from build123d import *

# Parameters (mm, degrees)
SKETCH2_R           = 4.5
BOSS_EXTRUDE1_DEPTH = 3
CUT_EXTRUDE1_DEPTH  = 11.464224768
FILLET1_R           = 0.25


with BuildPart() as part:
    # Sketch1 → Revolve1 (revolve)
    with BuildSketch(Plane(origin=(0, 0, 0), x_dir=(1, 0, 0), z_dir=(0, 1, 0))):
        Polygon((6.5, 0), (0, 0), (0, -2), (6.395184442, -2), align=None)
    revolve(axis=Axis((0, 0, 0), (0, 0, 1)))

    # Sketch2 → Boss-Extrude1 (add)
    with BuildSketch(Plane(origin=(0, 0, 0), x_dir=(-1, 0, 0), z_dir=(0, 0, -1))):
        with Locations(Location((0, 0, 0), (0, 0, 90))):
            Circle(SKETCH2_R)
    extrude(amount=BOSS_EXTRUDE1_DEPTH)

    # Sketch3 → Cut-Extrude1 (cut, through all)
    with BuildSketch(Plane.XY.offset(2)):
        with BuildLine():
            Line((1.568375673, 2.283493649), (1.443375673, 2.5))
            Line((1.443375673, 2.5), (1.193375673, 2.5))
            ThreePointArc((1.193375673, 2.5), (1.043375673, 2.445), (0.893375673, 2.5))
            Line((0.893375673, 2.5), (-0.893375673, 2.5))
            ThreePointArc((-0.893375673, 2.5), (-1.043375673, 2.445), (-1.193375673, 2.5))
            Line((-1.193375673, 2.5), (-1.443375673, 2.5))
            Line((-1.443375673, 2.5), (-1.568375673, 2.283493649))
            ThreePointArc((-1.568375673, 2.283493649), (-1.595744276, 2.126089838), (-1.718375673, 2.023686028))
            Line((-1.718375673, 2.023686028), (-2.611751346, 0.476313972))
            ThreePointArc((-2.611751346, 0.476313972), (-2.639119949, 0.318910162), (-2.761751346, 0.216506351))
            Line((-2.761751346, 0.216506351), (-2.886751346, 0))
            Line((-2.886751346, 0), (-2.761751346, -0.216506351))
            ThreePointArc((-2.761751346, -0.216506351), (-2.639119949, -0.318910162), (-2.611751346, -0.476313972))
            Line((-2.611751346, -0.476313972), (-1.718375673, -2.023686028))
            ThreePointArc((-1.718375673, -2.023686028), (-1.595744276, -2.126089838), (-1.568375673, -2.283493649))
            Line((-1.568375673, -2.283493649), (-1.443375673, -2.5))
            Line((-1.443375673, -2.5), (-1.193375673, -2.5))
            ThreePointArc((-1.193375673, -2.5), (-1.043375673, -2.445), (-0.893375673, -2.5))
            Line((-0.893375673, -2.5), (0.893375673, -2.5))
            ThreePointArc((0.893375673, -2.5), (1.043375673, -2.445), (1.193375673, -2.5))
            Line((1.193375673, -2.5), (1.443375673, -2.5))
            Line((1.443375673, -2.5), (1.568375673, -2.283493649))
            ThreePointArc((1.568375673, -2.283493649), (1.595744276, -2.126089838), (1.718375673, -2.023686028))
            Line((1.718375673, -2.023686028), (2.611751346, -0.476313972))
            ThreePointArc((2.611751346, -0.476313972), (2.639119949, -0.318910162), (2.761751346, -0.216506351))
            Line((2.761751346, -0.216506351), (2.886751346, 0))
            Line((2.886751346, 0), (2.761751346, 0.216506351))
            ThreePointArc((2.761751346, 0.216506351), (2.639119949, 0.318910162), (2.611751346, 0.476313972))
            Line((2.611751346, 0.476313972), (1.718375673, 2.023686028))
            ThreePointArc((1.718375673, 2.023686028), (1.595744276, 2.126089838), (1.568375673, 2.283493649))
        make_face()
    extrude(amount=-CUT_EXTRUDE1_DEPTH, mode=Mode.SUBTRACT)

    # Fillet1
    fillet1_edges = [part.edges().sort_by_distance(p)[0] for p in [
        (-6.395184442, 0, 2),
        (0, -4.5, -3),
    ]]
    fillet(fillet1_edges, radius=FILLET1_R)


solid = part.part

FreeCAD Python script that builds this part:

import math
import FreeCAD as App
import Part
import Sketcher
from FreeCAD import Vector
Q = App.Units.Quantity


def edges_at(feature, points):
    """Names of the edges that pass closest to the given points."""
    edges = feature.Shape.Edges
    near = lambda p: min(range(len(edges)), key=lambda i: edges[i].distToShape(Part.Vertex(*p))[0])
    return sorted({f"Edge{near(p) + 1}" for p in points})


def add_polygon(sketch, points):
    """Adds a closed chain of lines whose ends are joined by coincident constraints."""
    first, n = sketch.GeometryCount, len(points)
    for a, b in zip(points, points[1:] + points[:1]):
        sketch.addGeometry(Part.LineSegment(App.Vector(*a, 0), App.Vector(*b, 0)), False)
    for i in range(n):
        sketch.addConstraint(Sketcher.Constraint("Coincident", first + i, 2, first + (i + 1) % n, 1))

doc = App.newDocument("Part")
body = doc.addObject("PartDesign::Body", "Body")

sketch1 = doc.addObject("Sketcher::SketchObject", "Sketch")
body.addObject(sketch1)
sketch1.AttachmentSupport = (doc.XZ_Plane, [""])
sketch1.MapMode = "FlatFace"
add_polygon(sketch1, [(6.5, 0), (0, 0), (0, 2), (6.4, 2)])
sketch1.addConstraint([
    Sketcher.Constraint("Horizontal", 0),
    Sketcher.Constraint("Vertical", 1),
    Sketcher.Constraint("Horizontal", 2),
    Sketcher.Constraint("Coincident", 0, 2, -1, 1),
    Sketcher.Constraint("DistanceY", 1, 1, 1, 2, 2.0),
    Sketcher.Constraint("Angle", 3, Q("-87 deg")),
    Sketcher.Constraint("DistanceX", 0, 2, 0, 1, 6.5),
])
revolution = doc.addObject("PartDesign::Revolution", "Revolution")
body.addObject(revolution)
revolution.Profile = sketch1
revolution.ReferenceAxis = (sketch1, ["V_Axis"])
revolution.Angle = 360

sketch2 = doc.addObject("Sketcher::SketchObject", "Sketch001")
body.addObject(sketch2)
sketch2.AttachmentSupport = (doc.XY_Plane, [""])
sketch2.MapMode = "FlatFace"
sketch2.addGeometry(Part.Circle(Vector(0, 0, 0), Vector(0, 0, 1), 4.5), False)
sketch2.addConstraint([
    Sketcher.Constraint("Coincident", 0, 3, -1, 1),
    Sketcher.Constraint("Diameter", 0, 9.0),
])
pad1 = doc.addObject("PartDesign::Pad", "Pad")
body.addObject(pad1)
pad1.Profile = sketch2
pad1.Length = 3
pad1.Reversed = True

sketch3 = doc.addObject("Sketcher::SketchObject", "Sketch002")
body.addObject(sketch3)
sketch3.AttachmentSupport = (doc.XY_Plane, [""])
sketch3.MapMode = "FlatFace"
sketch3.AttachmentOffset = App.Placement(Vector(0, 0, 2), App.Rotation())
sketch3.addGeometry([
    Part.LineSegment(Vector(1.57, 2.28, 0), Vector(1.44, 2.5, 0)),
    Part.LineSegment(Vector(1.44, 2.5, 0), Vector(1.19, 2.5, 0)),
    Part.ArcOfCircle(Part.Circle(Vector(1.04, 2.68, 0), Vector(0, 0, 1), 0.23), math.radians(-130), math.radians(-50)),
    Part.LineSegment(Vector(0.89, 2.5, 0), Vector(-0.89, 2.5, 0)),
    Part.ArcOfCircle(Part.Circle(Vector(-1.04, 2.68, 0), Vector(0, 0, 1), 0.23), math.radians(-130), math.radians(-50)),
    Part.LineSegment(Vector(-1.19, 2.5, 0), Vector(-1.44, 2.5, 0)),
    Part.LineSegment(Vector(-1.44, 2.5, 0), Vector(-1.57, 2.28, 0)),
    Part.ArcOfCircle(Part.Circle(Vector(-1.8, 2.24, 0), Vector(0, 0, 1), 0.23), math.radians(-70), math.radians(10)),
    Part.LineSegment(Vector(-1.72, 2.02, 0), Vector(-2.61, 0.48, 0)),
    Part.ArcOfCircle(Part.Circle(Vector(-2.84, 0.43, 0), Vector(0, 0, 1), 0.23), math.radians(-70), math.radians(10)),
    Part.LineSegment(Vector(-2.76, 0.22, 0), Vector(-2.89, 0, 0)),
    Part.LineSegment(Vector(-2.89, 0, 0), Vector(-2.76, -0.22, 0)),
    Part.ArcOfCircle(Part.Circle(Vector(-2.84, -0.43, 0), Vector(0, 0, 1), 0.23), math.radians(-10), math.radians(70)),
    Part.LineSegment(Vector(-2.61, -0.48, 0), Vector(-1.72, -2.02, 0)),
    Part.ArcOfCircle(Part.Circle(Vector(-1.8, -2.24, 0), Vector(0, 0, 1), 0.23), math.radians(-10), math.radians(70)),
    Part.LineSegment(Vector(-1.57, -2.28, 0), Vector(-1.44, -2.5, 0)),
    Part.LineSegment(Vector(-1.44, -2.5, 0), Vector(-1.19, -2.5, 0)),
    Part.ArcOfCircle(Part.Circle(Vector(-1.04, -2.68, 0), Vector(0, 0, 1), 0.23), math.radians(50), math.radians(130)),
    Part.LineSegment(Vector(-0.89, -2.5, 0), Vector(0.89, -2.5, 0)),
    Part.ArcOfCircle(Part.Circle(Vector(1.04, -2.68, 0), Vector(0, 0, 1), 0.23), math.radians(50), math.radians(130)),
    Part.LineSegment(Vector(1.19, -2.5, 0), Vector(1.44, -2.5, 0)),
    Part.LineSegment(Vector(1.44, -2.5, 0), Vector(1.57, -2.28, 0)),
    Part.ArcOfCircle(Part.Circle(Vector(1.8, -2.24, 0), Vector(0, 0, 1), 0.23), math.radians(110), math.radians(190)),
    Part.LineSegment(Vector(1.72, -2.02, 0), Vector(2.61, -0.48, 0)),
    Part.ArcOfCircle(Part.Circle(Vector(2.84, -0.43, 0), Vector(0, 0, 1), 0.23), math.radians(110), math.radians(190)),
    Part.LineSegment(Vector(2.76, -0.22, 0), Vector(2.89, 0, 0)),
    Part.LineSegment(Vector(2.89, 0, 0), Vector(2.76, 0.22, 0)),
    Part.ArcOfCircle(Part.Circle(Vector(2.84, 0.43, 0), Vector(0, 0, 1), 0.23), math.radians(170), math.radians(250)),
    Part.LineSegment(Vector(2.61, 0.48, 0), Vector(1.72, 2.02, 0)),
    Part.ArcOfCircle(Part.Circle(Vector(1.8, 2.24, 0), Vector(0, 0, 1), 0.23), math.radians(170), math.radians(250)),
], False)
sketch3.addConstraint([
    Sketcher.Constraint("Coincident", 0, 2, 1, 1),
    Sketcher.Constraint("Coincident", 1, 2, 2, 2),
    Sketcher.Constraint("Coincident", 2, 1, 3, 1),
    Sketcher.Constraint("Coincident", 3, 2, 4, 2),
    Sketcher.Constraint("Coincident", 4, 1, 5, 1),
    Sketcher.Constraint("Coincident", 5, 2, 6, 1),
    Sketcher.Constraint("Coincident", 6, 2, 7, 2),
    Sketcher.Constraint("Coincident", 7, 1, 8, 1),
    Sketcher.Constraint("Coincident", 8, 2, 9, 2),
    Sketcher.Constraint("Coincident", 9, 1, 10, 1),
    Sketcher.Constraint("Coincident", 10, 2, 11, 1),
    Sketcher.Constraint("Coincident", 11, 2, 12, 2),
    Sketcher.Constraint("Coincident", 12, 1, 13, 1),
    Sketcher.Constraint("Coincident", 13, 2, 14, 2),
    Sketcher.Constraint("Coincident", 14, 1, 15, 1),
    Sketcher.Constraint("Coincident", 15, 2, 16, 1),
    Sketcher.Constraint("Coincident", 16, 2, 17, 2),
    Sketcher.Constraint("Coincident", 17, 1, 18, 1),
    Sketcher.Constraint("Coincident", 18, 2, 19, 2),
    Sketcher.Constraint("Coincident", 19, 1, 20, 1),
    Sketcher.Constraint("Coincident", 20, 2, 21, 1),
    Sketcher.Constraint("Coincident", 21, 2, 22, 2),
    Sketcher.Constraint("Coincident", 22, 1, 23, 1),
    Sketcher.Constraint("Coincident", 23, 2, 24, 2),
    Sketcher.Constraint("Coincident", 24, 1, 25, 1),
    Sketcher.Constraint("Coincident", 25, 2, 26, 1),
    Sketcher.Constraint("Coincident", 26, 2, 27, 2),
    Sketcher.Constraint("Coincident", 27, 1, 28, 1),
    Sketcher.Constraint("Coincident", 28, 2, 29, 2),
    Sketcher.Constraint("Coincident", 29, 1, 0, 1),
    Sketcher.Constraint("Horizontal", 1),
    Sketcher.Constraint("Horizontal", 3),
    Sketcher.Constraint("Horizontal", 5),
    Sketcher.Constraint("Horizontal", 16),
    Sketcher.Constraint("Horizontal", 18),
    Sketcher.Constraint("Horizontal", 20),
    Sketcher.Constraint("Equal", 2, 4),
    Sketcher.Constraint("Equal", 4, 7),
    Sketcher.Constraint("Equal", 7, 9),
    Sketcher.Constraint("Equal", 9, 12),
    Sketcher.Constraint("Equal", 12, 14),
    Sketcher.Constraint("Equal", 14, 17),
    Sketcher.Constraint("Equal", 17, 19),
    Sketcher.Constraint("Equal", 19, 22),
    Sketcher.Constraint("Equal", 22, 24),
    Sketcher.Constraint("Equal", 24, 27),
    Sketcher.Constraint("Equal", 27, 29),
    Sketcher.Constraint("Symmetric", 2, 3, 17, 3, -1, 1),
    Sketcher.Constraint("Symmetric", 4, 3, 19, 3, -1, 1),
    Sketcher.Constraint("Symmetric", 7, 3, 22, 3, -1, 1),
    Sketcher.Constraint("Symmetric", 9, 3, 24, 3, -1, 1),
    Sketcher.Constraint("Symmetric", 12, 3, 27, 3, -1, 1),
    Sketcher.Constraint("Symmetric", 14, 3, 29, 3, -1, 1),
    Sketcher.Constraint("Symmetric", 0, 2, 15, 2, -1, 1),
    Sketcher.Constraint("Symmetric", 5, 2, 20, 2, -1, 1),
    Sketcher.Constraint("Symmetric", 10, 2, 25, 2, -1, 1),
    Sketcher.Constraint("Symmetric", 2, 3, 4, 3, -2),
    Sketcher.Constraint("Symmetric", 14, 3, 22, 3, -2),
    Sketcher.Constraint("Symmetric", 12, 3, 24, 3, -2),
    Sketcher.Constraint("Symmetric", 0, 2, 5, 2, -2),
    Sketcher.Constraint("PointOnObject", 10, 2, -1),
    Sketcher.Constraint("Parallel", 6, 8),
    Sketcher.Constraint("Parallel", 8, 10),
    Sketcher.Constraint("Parallel", 0, 11),
    Sketcher.Constraint("Parallel", 11, 13),
    Sketcher.Constraint("Parallel", 13, 15),
    Sketcher.Constraint("Parallel", 10, 21),
    Sketcher.Constraint("Parallel", 21, 23),
    Sketcher.Constraint("Parallel", 23, 25),
    Sketcher.Constraint("Parallel", 15, 26),
    Sketcher.Constraint("Parallel", 26, 28),
    Sketcher.Constraint("Horizontal", 1, 2, 2, 1),
    Sketcher.Constraint("Horizontal", 16, 2, 17, 1),
    Sketcher.Constraint("Horizontal", 14, 1, 21, 2),
    Sketcher.Constraint("Horizontal", 13, 2, 22, 1),
    Sketcher.Constraint("Horizontal", 8, 2, 27, 1),
    Sketcher.Constraint("Vertical", 8, 2, 12, 1),
    Sketcher.Constraint("Equal", 6, 10),
    Sketcher.Constraint("Angle", 0, Q("120 deg")),
    Sketcher.Constraint("DistanceX", 1, 2, 1, 1, 0.25),
    Sketcher.Constraint("DistanceY", -1, 1, 0, 2, 2.5),
    Sketcher.Constraint("DistanceX", 2, 3, 0, 2, 0.4),
    Sketcher.Constraint("Distance", 0, 0.25),
    Sketcher.Constraint("DistanceX", 7, 1, 6, 2, 0.15),
    Sketcher.Constraint("DistanceX", 9, 1, 8, 2, 0.15),
    Sketcher.Constraint("Radius", 2, 0.232045),
    Sketcher.Constraint("DistanceX", 3, 2, 3, 1, 1.786751),
    Sketcher.Constraint("DistanceX", 7, 3, -1, 1, 1.796702),
    Sketcher.Constraint("DistanceX", 9, 3, 4, 3, 1.796702),
])
pocket1 = doc.addObject("PartDesign::Pocket", "Pocket")
body.addObject(pocket1)
pocket1.Profile = sketch3
pocket1.Type = "ThroughAll"
doc.recompute()

fillet = doc.addObject("PartDesign::Fillet", "Fillet")
body.addObject(fillet)
fillet.Base = (pocket1, edges_at(pocket1, [(-6.395, 0, 2), (0, -4.5, -3)]))
fillet.Radius = 0.25

doc.recompute()
